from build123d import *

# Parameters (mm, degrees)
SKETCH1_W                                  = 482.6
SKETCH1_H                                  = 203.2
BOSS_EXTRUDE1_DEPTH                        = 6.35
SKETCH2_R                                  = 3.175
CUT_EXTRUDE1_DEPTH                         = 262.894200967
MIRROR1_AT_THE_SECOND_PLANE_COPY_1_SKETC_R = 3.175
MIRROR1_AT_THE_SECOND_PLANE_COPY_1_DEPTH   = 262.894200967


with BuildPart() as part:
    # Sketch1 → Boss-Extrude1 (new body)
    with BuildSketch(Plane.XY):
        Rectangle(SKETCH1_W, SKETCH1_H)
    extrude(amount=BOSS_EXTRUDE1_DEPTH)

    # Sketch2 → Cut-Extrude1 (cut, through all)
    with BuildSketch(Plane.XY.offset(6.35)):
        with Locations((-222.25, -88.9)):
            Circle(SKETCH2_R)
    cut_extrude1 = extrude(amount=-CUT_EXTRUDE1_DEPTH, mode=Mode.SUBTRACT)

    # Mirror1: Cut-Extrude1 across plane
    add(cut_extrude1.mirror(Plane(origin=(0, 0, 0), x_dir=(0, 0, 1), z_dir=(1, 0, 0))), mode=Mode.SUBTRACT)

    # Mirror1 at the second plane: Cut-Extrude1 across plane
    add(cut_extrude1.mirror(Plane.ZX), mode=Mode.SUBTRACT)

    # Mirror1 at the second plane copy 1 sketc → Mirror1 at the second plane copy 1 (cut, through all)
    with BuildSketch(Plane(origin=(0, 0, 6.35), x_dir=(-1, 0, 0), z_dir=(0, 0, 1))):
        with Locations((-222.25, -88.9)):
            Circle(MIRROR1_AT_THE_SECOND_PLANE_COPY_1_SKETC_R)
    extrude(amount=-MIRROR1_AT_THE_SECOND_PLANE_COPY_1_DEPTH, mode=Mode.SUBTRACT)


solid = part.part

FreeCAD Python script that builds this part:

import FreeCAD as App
import Part
import Sketcher
Q = App.Units.Quantity


def add_polygon(sketch, points):
    """Adds a closed chain of lines whose ends are joined by coincident constraints."""
    first, n = sketch.GeometryCount, len(points)
    for a, b in zip(points, points[1:] + points[:1]):
        sketch.addGeometry(Part.LineSegment(App.Vector(*a, 0), App.Vector(*b, 0)), False)
    for i in range(n):
        sketch.addConstraint(Sketcher.Constraint("Coincident", first + i, 2, first + (i + 1) % n, 1))

doc = App.newDocument("Part")
body = doc.addObject("PartDesign::Body", "Body")

sketch1 = doc.addObject("Sketcher::SketchObject", "Sketch")
body.addObject(sketch1)
sketch1.AttachmentSupport = (doc.XY_Plane, [""])
sketch1.MapMode = "FlatFace"
add_polygon(sketch1, [(-241, 102), (-241, -102), (241, -102), (241, 102)])
sketch1.addConstraint([
    Sketcher.Constraint("Vertical", 0),
    Sketcher.Constraint("Horizontal", 1),
    Sketcher.Constraint("Vertical", 2),
    Sketcher.Constraint("Horizontal", 3),
    Sketcher.Constraint("Symmetric", 0, 2, 2, 2, -1, 1),
    Sketcher.Constraint("DistanceX", 1, 1, 1, 2, Q("19 in")),
    Sketcher.Constraint("DistanceY", 0, 2, 0, 1, Q("8 in")),
])
pad1 = doc.addObject("PartDesign::Pad", "Pad")
body.addObject(pad1)
pad1.Profile = sketch1
pad1.Length = Q("0.25 in")

sketch2 = doc.addObject("Sketcher::SketchObject", "Sketch001")
body.addObject(sketch2)
sketch2.AttachmentSupport = (doc.XY_Plane, [""])
sketch2.MapMode = "FlatFace"
sketch2.AttachmentOffset = App.Placement(App.Vector(0, 0, 0.25 * 25.4), App.Rotation())
sketch2.addGeometry(Part.Circle(App.Vector(-222.2, -88.9, 0), App.Vector(0, 0, 1), 3.2), False)
sketch2.addConstraint([
    Sketcher.Constraint("Diameter", 0, Q("0.25 in")),
    Sketcher.Constraint("DistanceY", 0, 3, -1, 1, Q("3.5 in")),
    Sketcher.Constraint("DistanceX", 0, 3, -1, 1, Q("8.75 in")),
])
pocket1 = doc.addObject("PartDesign::Pocket", "Pocket")
body.addObject(pocket1)
pocket1.Profile = sketch2
pocket1.Type = "ThroughAll"
doc.recompute()

mirrored = doc.addObject("PartDesign::Mirrored", "Mirrored")
body.addObject(mirrored)
mirrored.Originals = [pocket1]
mirrored.MirrorPlane = (doc.YZ_Plane, [""])
body.Tip = mirrored
doc.recompute()

mirrored2 = doc.addObject("PartDesign::Mirrored", "Mirrored001")
body.addObject(mirrored2)
mirrored2.Originals = [pocket1]
mirrored2.MirrorPlane = (doc.XZ_Plane, [""])
body.Tip = mirrored2

sketch3 = doc.addObject("Sketcher::SketchObject", "Sketch002")
body.addObject(sketch3)
sketch3.AttachmentSupport = (doc.XY_Plane, [""])
sketch3.MapMode = "FlatFace"
sketch3.AttachmentOffset = App.Placement(App.Vector(0, 0, 0.25 * 25.4), App.Rotation())
sketch3.addGeometry(Part.Circle(App.Vector(222.2, 88.9, 0), App.Vector(0, 0, 1), 3.2), False)
sketch3.addConstraint([
    Sketcher.Constraint("Diameter", 0, Q("0.25 in")),
    Sketcher.Constraint("DistanceY", -1, 1, 0, 3, Q("3.5 in")),
    Sketcher.Constraint("DistanceX", -1, 1, 0, 3, Q("8.75 in")),
])
pocket2 = doc.addObject("PartDesign::Pocket", "Pocket001")
body.addObject(pocket2)
pocket2.Profile = sketch3
pocket2.Type = "ThroughAll"

doc.recompute()
